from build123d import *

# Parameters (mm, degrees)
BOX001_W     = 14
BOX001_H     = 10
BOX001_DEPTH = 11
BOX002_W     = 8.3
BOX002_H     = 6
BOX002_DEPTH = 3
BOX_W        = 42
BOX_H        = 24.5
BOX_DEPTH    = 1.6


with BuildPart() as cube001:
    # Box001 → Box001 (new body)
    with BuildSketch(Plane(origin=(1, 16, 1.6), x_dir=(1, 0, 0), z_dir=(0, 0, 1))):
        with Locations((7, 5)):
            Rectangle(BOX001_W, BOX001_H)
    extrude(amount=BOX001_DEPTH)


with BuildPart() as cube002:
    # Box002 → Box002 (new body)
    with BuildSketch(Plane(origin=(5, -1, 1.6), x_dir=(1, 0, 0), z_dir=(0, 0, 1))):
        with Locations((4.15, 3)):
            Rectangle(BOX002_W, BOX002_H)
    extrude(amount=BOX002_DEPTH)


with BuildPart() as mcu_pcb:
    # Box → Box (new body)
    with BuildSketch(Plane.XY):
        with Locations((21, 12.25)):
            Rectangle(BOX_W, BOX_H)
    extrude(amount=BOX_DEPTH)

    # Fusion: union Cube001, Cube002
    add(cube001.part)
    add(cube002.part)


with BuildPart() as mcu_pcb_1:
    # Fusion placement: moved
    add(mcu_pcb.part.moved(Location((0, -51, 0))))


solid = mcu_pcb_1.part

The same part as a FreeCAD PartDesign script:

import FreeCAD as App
import Part
import Sketcher
from FreeCAD import Vector
Q = App.Units.Quantity


def add_polygon(sketch, points):
    """Adds a closed chain of lines whose ends are joined by coincident constraints."""
    first, n = sketch.GeometryCount, len(points)
    for a, b in zip(points, points[1:] + points[:1]):
        sketch.addGeometry(Part.LineSegment(App.Vector(*a, 0), App.Vector(*b, 0)), False)
    for i in range(n):
        sketch.addConstraint(Sketcher.Constraint("Coincident", first + i, 2, first + (i + 1) % n, 1))

doc = App.newDocument("Part")
body = doc.addObject("PartDesign::Body", "Body")

sketch1 = body.newObject("Sketcher::SketchObject", "Sketch")
sketch1.AttachmentSupport = (doc.getObject("XY_Plane"), [""])
sketch1.MapMode = "FlatFace"
sketch1.AttachmentOffset = App.Placement(Vector(0, 0, 1.6), App.Rotation())
add_polygon(sketch1, [(1, 26), (1, 16), (15, 16), (15, 26)])
sketch1.addConstraint(Sketcher.Constraint("Vertical", 0))
sketch1.addConstraint(Sketcher.Constraint("Horizontal", 1))
sketch1.addConstraint(Sketcher.Constraint("Vertical", 2))
sketch1.addConstraint(Sketcher.Constraint("Horizontal", 3))
sketch1.addConstraint(Sketcher.Constraint("DistanceX", 1, 1, 1, 2, Q("14 mm")))
sketch1.addConstraint(Sketcher.Constraint("DistanceY", 0, 2, 0, 1, Q("10 mm")))
sketch1.addConstraint(Sketcher.Constraint("DistanceX", -1, 1, 0, 2, Q("1 mm")))
sketch1.addConstraint(Sketcher.Constraint("DistanceY", -1, 1, 0, 2, Q("16 mm")))
pad1 = body.newObject("PartDesign::Pad", "Pad")
pad1.Profile = sketch1
pad1.Length = 11
body2 = doc.addObject("PartDesign::Body", "Body001")

sketch2 = body2.newObject("Sketcher::SketchObject", "Sketch001")
sketch2.AttachmentSupport = (doc.getObject("XY_Plane001"), [""])
sketch2.MapMode = "FlatFace"
sketch2.AttachmentOffset = App.Placement(Vector(0, 0, 1.6), App.Rotation())
add_polygon(sketch2, [(5, 5), (5, -1), (13.3, -1), (13.3, 5)])
sketch2.addConstraint(Sketcher.Constraint("Vertical", 0))
sketch2.addConstraint(Sketcher.Constraint("Horizontal", 1))
sketch2.addConstraint(Sketcher.Constraint("Vertical", 2))
sketch2.addConstraint(Sketcher.Constraint("Horizontal", 3))
sketch2.addConstraint(Sketcher.Constraint("DistanceY", 0, 2, 0, 1, Q("6 mm")))
sketch2.addConstraint(Sketcher.Constraint("DistanceX", 1, 1, 1, 2, Q("8.3 mm")))
sketch2.addConstraint(Sketcher.Constraint("DistanceX", -1, 1, 0, 2, Q("5 mm")))
sketch2.addConstraint(Sketcher.Constraint("DistanceY", 0, 2, -1, 1, Q("1 mm")))
pad2 = body2.newObject("PartDesign::Pad", "Pad001")
pad2.Profile = sketch2
pad2.Length = 3
body3 = doc.addObject("PartDesign::Body", "Body002")

sketch3 = body3.newObject("Sketcher::SketchObject", "Sketch002")
sketch3.AttachmentSupport = (doc.getObject("XY_Plane002"), [""])
sketch3.MapMode = "FlatFace"
add_polygon(sketch3, [(0, 24.5), (0, 0), (42, 0), (42, 24.5)])
sketch3.addConstraint(Sketcher.Constraint("Vertical", 0))
sketch3.addConstraint(Sketcher.Constraint("Horizontal", 1))
sketch3.addConstraint(Sketcher.Constraint("Vertical", 2))
sketch3.addConstraint(Sketcher.Constraint("Horizontal", 3))
sketch3.addConstraint(Sketcher.Constraint("Coincident", 0, 2, -1, 1))
sketch3.addConstraint(Sketcher.Constraint("DistanceX", 1, 1, 1, 2, Q("42 mm")))
sketch3.addConstraint(Sketcher.Constraint("DistanceY", 0, 2, 0, 1, Q("24.5 mm")))
pad3 = body3.newObject("PartDesign::Pad", "Pad002")
pad3.Profile = sketch3
pad3.Length = 1.6
doc.recompute()

boolean = body3.newObject("PartDesign::Boolean", "Boolean")
boolean.Type = "Fuse"
boolean.addObjects([body])
doc.recompute()

boolean2 = body3.newObject("PartDesign::Boolean", "Boolean001")
boolean2.Type = "Fuse"
boolean2.addObjects([body2])
body4 = doc.addObject("PartDesign::Body", "Body003")
doc.recompute()

body3.Placement = App.Placement(Vector(0, -51, 0), App.Rotation(Vector(0, 0, 1), 0))
boolean3 = body4.newObject("PartDesign::Boolean", "Boolean002")
boolean3.Type = "Fuse"
boolean3.addObjects([body3])

doc.recompute()
